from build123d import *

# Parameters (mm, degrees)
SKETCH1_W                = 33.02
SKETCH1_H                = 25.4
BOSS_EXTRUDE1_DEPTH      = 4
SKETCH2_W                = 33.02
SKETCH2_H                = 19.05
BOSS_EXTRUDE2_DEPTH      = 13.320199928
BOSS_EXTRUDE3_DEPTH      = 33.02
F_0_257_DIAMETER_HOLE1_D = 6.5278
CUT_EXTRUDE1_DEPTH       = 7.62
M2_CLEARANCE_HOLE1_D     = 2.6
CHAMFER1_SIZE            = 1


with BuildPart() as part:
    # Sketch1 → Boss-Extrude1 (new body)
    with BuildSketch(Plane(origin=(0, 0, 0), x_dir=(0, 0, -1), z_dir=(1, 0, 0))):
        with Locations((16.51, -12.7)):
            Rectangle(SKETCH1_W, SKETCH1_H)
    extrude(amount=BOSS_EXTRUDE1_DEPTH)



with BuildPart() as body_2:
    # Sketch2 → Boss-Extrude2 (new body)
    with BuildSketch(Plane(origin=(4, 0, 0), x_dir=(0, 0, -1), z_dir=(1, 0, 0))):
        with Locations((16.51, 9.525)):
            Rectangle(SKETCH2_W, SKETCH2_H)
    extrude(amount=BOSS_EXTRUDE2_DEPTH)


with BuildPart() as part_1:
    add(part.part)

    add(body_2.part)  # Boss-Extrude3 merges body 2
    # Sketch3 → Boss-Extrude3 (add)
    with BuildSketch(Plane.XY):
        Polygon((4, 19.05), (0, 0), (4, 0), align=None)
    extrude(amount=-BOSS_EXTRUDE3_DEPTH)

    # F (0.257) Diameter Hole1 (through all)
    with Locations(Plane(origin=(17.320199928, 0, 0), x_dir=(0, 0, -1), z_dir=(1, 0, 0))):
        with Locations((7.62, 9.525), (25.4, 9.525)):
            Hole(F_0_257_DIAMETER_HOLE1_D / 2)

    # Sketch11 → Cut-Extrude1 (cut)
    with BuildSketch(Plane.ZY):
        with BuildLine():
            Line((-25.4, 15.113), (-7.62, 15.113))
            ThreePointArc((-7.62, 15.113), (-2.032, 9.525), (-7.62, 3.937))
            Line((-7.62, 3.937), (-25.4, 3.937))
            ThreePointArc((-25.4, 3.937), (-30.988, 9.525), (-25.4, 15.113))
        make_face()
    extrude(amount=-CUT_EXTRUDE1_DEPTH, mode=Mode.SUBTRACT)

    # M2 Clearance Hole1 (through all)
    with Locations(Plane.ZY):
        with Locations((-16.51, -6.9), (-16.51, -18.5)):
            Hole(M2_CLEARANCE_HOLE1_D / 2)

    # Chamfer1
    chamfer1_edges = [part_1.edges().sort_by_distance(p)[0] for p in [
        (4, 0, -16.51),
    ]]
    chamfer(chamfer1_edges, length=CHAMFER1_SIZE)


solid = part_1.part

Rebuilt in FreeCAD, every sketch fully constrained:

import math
import FreeCAD as App
import Part
import Sketcher

V = App.Vector
Q = App.Units.Quantity


def edges_at(feature, points):
    """Names of the edges that pass closest to the given points."""
    edges = feature.Shape.Edges
    near = lambda p: min(range(len(edges)), key=lambda i: edges[i].distToShape(Part.Vertex(*p))[0])
    return sorted({f"Edge{near(p) + 1}" for p in points})


def add_polygon(sketch, points):
    """Adds a closed chain of lines whose ends are joined by coincident constraints."""
    first, n = sketch.GeometryCount, len(points)
    for a, b in zip(points, points[1:] + points[:1]):
        sketch.addGeometry(Part.LineSegment(App.Vector(*a, 0), App.Vector(*b, 0)), False)
    for i in range(n):
        sketch.addConstraint(Sketcher.Constraint("Coincident", first + i, 2, first + (i + 1) % n, 1))

doc = App.newDocument("Part")
body = doc.addObject("PartDesign::Body", "Body")

# Sketch on YZ plane
sketch1 = doc.addObject("Sketcher::SketchObject", "Sketch")
body.addObject(sketch1)
sketch1.AttachmentSupport = (doc.YZ_Plane, [""])
sketch1.MapMode = "FlatFace"
add_polygon(sketch1, [(0, 0), (-25, 0), (-25, -33), (0, -33)])  # lines 0-3
sketch1.addConstraint(Sketcher.Constraint("Horizontal", 0))
sketch1.addConstraint(Sketcher.Constraint("Vertical", 1))
sketch1.addConstraint(Sketcher.Constraint("Horizontal", 2))
sketch1.addConstraint(Sketcher.Constraint("Vertical", 3))
sketch1.addConstraint(Sketcher.Constraint("Coincident", 3, 2, -1, 1))
sketch1.addConstraint(Sketcher.Constraint("DistanceX", 0, 2, 0, 1, Q("1 in")))
sketch1.addConstraint(Sketcher.Constraint("DistanceY", 1, 2, 1, 1, Q("1.3 in")))
pad1 = doc.addObject("PartDesign::Pad", "Pad")
body.addObject(pad1)
pad1.Profile = sketch1
pad1.Length = 4
body2 = doc.addObject("PartDesign::Body", "Body001")

# Sketch on YZ plane
sketch2 = doc.addObject("Sketcher::SketchObject", "Sketch001")
body2.addObject(sketch2)
sketch2.AttachmentSupport = (doc.getObject("YZ_Plane001"), [""])
sketch2.MapMode = "FlatFace"
sketch2.AttachmentOffset = App.Placement(V(0, 0, 4), App.Rotation())
add_polygon(sketch2, [(19, 0), (0, 0), (0, -33), (19, -33)])  # lines 0-3
sketch2.addConstraint(Sketcher.Constraint("Horizontal", 0))
sketch2.addConstraint(Sketcher.Constraint("Vertical", 1))
sketch2.addConstraint(Sketcher.Constraint("Horizontal", 2))
sketch2.addConstraint(Sketcher.Constraint("Vertical", 3))
sketch2.addConstraint(Sketcher.Constraint("Coincident", 0, 2, -1, 1))
sketch2.addConstraint(Sketcher.Constraint("DistanceY", 1, 2, 1, 1, Q("1.3 in")))
sketch2.addConstraint(Sketcher.Constraint("DistanceX", 0, 2, 0, 1, Q("0.75 in")))
pad2 = doc.addObject("PartDesign::Pad", "Pad001")
body2.addObject(pad2)
pad2.Profile = sketch2
pad2.Length = 13.3202
body.AllowCompound = True
doc.recompute()

boolean = doc.addObject("PartDesign::Boolean", "Boolean")
body.addObject(boolean)
boolean.Type = "Fuse"
boolean.addObjects([body2])

# Sketch on XY plane
sketch3 = doc.addObject("Sketcher::SketchObject", "Sketch002")
body.addObject(sketch3)
sketch3.AttachmentSupport = (doc.XY_Plane, [""])
sketch3.MapMode = "FlatFace"
add_polygon(sketch3, [(4, 19.1), (0, 0), (4, 0)])  # lines 0-2
sketch3.addConstraint(Sketcher.Constraint("Horizontal", 1))
sketch3.addConstraint(Sketcher.Constraint("Vertical", 2))
sketch3.addConstraint(Sketcher.Constraint("Coincident", 0, 2, -1, 1))
sketch3.addConstraint(Sketcher.Constraint("DistanceY", 2, 1, 2, 2, Q("0.75 in")))
sketch3.addConstraint(Sketcher.Constraint("DistanceX", 1, 1, 1, 2, Q("4 mm")))
pad3 = doc.addObject("PartDesign::Pad", "Pad002")
body.addObject(pad3)
pad3.Profile = sketch3
pad3.Length = Q("1.3 in")
pad3.Reversed = True

# Sketch on YZ plane
sketch4 = doc.addObject("Sketcher::SketchObject", "Sketch003")
body.addObject(sketch4)
sketch4.AttachmentSupport = (doc.YZ_Plane, [""])
sketch4.MapMode = "FlatFace"
sketch4.AttachmentOffset = App.Placement(V(0, 0, 17.3202), App.Rotation())
sketch4.addGeometry(Part.Circle(V(9.5, -7.6, 0), V(0, 0, 1), 3.3), False)
sketch4.addGeometry(Part.Circle(V(9.5, -25.4, 0), V(0, 0, 1), 3.3), False)
sketch4.addConstraint(Sketcher.Constraint("Equal", 0, 1))
sketch4.addConstraint(Sketcher.Constraint("Vertical", 0, 3, 1, 3))
sketch4.addConstraint(Sketcher.Constraint("Diameter", 0, Q("0.257 in")))
sketch4.addConstraint(Sketcher.Constraint("DistanceY", 1, 3, -1, 1, Q("1 in")))
sketch4.addConstraint(Sketcher.Constraint("DistanceY", 0, 3, -1, 1, Q("0.3 in")))
sketch4.addConstraint(Sketcher.Constraint("DistanceX", -1, 1, 0, 3, Q("0.375 in")))
doc.recompute()
hole = doc.addObject("PartDesign::Hole", "Hole")
body.addObject(hole)
hole.Profile = sketch4
hole.ThreadType = "None"
hole.Diameter = Q("0.257 in")
hole.DepthType = "ThroughAll"

# Sketch on YZ plane
sketch5 = doc.addObject("Sketcher::SketchObject", "Sketch004")
body.addObject(sketch5)
sketch5.AttachmentSupport = (doc.YZ_Plane, [""])
sketch5.MapMode = "FlatFace"
sketch5.addGeometry(Part.LineSegment(V(15, -8, 0), V(15, -25, 0)), False)
sketch5.addGeometry(Part.ArcOfCircle(Part.Circle(V(10, -25, 0), V(0, 0, 1), 6), math.radians(180), math.radians(360)), False)
sketch5.addGeometry(Part.LineSegment(V(4, -25, 0), V(4, -8, 0)), False)
sketch5.addGeometry(Part.ArcOfCircle(Part.Circle(V(10, -8, 0), V(0, 0, 1), 6), math.radians(0), math.radians(180)), False)
sketch5.addConstraint(Sketcher.Constraint("Tangent", 0, 2, 1, 2))
sketch5.addConstraint(Sketcher.Constraint("Tangent", 1, 1, 2, 1))
sketch5.addConstraint(Sketcher.Constraint("Tangent", 2, 2, 3, 2))
sketch5.addConstraint(Sketcher.Constraint("Tangent", 3, 1, 0, 1))
sketch5.addConstraint(Sketcher.Constraint("Vertical", 0))
sketch5.addConstraint(Sketcher.Constraint("Vertical", 2))
sketch5.addConstraint(Sketcher.Constraint("Radius", 1, Q("0.22 in")))
sketch5.addConstraint(Sketcher.Constraint("DistanceY", 0, 2, 0, 1, Q("0.7 in")))
sketch5.addConstraint(Sketcher.Constraint("DistanceY", 1, 3, -1, 1, Q("1 in")))
sketch5.addConstraint(Sketcher.Constraint("DistanceX", -1, 1, 1, 3, Q("0.375 in")))
pocket1 = doc.addObject("PartDesign::Pocket", "Pocket")
body.addObject(pocket1)
pocket1.Profile = sketch5
pocket1.Length = Q("0.3 in")
pocket1.Reversed = True

# Sketch on YZ plane
sketch6 = doc.addObject("Sketcher::SketchObject", "Sketch005")
body.addObject(sketch6)
sketch6.AttachmentSupport = (doc.YZ_Plane, [""])
sketch6.MapMode = "FlatFace"
sketch6.addGeometry(Part.Circle(V(-6.9, -16.5, 0), V(0, 0, 1), 1.3), False)
sketch6.addGeometry(Part.Circle(V(-18.5, -16.5, 0), V(0, 0, 1), 1.3), False)
sketch6.addConstraint(Sketcher.Constraint("Equal", 0, 1))
sketch6.addConstraint(Sketcher.Constraint("Horizontal", 0, 3, 1, 3))
sketch6.addConstraint(Sketcher.Constraint("Diameter", 0, Q("2.6 mm")))
sketch6.addConstraint(Sketcher.Constraint("DistanceY", 0, 3, -1, 1, Q("0.65 in")))
sketch6.addConstraint(Sketcher.Constraint("DistanceX", 0, 3, -1, 1, Q("6.9 mm")))
sketch6.addConstraint(Sketcher.Constraint("DistanceX", 1, 3, -1, 1, Q("18.5 mm")))
doc.recompute()
hole2 = doc.addObject("PartDesign::Hole", "Hole001")
body.addObject(hole2)
hole2.Profile = sketch6
hole2.ThreadType = "None"
hole2.Diameter = 2.6
hole2.DepthType = "ThroughAll"
hole2.Reversed = True
doc.recompute()

chamfer = doc.addObject("PartDesign::Chamfer", "Chamfer")
body.addObject(chamfer)
chamfer.Base = (hole2, edges_at(hole2, [(4, 0, -16.51)]))
chamfer.Size = 1

doc.recompute()
